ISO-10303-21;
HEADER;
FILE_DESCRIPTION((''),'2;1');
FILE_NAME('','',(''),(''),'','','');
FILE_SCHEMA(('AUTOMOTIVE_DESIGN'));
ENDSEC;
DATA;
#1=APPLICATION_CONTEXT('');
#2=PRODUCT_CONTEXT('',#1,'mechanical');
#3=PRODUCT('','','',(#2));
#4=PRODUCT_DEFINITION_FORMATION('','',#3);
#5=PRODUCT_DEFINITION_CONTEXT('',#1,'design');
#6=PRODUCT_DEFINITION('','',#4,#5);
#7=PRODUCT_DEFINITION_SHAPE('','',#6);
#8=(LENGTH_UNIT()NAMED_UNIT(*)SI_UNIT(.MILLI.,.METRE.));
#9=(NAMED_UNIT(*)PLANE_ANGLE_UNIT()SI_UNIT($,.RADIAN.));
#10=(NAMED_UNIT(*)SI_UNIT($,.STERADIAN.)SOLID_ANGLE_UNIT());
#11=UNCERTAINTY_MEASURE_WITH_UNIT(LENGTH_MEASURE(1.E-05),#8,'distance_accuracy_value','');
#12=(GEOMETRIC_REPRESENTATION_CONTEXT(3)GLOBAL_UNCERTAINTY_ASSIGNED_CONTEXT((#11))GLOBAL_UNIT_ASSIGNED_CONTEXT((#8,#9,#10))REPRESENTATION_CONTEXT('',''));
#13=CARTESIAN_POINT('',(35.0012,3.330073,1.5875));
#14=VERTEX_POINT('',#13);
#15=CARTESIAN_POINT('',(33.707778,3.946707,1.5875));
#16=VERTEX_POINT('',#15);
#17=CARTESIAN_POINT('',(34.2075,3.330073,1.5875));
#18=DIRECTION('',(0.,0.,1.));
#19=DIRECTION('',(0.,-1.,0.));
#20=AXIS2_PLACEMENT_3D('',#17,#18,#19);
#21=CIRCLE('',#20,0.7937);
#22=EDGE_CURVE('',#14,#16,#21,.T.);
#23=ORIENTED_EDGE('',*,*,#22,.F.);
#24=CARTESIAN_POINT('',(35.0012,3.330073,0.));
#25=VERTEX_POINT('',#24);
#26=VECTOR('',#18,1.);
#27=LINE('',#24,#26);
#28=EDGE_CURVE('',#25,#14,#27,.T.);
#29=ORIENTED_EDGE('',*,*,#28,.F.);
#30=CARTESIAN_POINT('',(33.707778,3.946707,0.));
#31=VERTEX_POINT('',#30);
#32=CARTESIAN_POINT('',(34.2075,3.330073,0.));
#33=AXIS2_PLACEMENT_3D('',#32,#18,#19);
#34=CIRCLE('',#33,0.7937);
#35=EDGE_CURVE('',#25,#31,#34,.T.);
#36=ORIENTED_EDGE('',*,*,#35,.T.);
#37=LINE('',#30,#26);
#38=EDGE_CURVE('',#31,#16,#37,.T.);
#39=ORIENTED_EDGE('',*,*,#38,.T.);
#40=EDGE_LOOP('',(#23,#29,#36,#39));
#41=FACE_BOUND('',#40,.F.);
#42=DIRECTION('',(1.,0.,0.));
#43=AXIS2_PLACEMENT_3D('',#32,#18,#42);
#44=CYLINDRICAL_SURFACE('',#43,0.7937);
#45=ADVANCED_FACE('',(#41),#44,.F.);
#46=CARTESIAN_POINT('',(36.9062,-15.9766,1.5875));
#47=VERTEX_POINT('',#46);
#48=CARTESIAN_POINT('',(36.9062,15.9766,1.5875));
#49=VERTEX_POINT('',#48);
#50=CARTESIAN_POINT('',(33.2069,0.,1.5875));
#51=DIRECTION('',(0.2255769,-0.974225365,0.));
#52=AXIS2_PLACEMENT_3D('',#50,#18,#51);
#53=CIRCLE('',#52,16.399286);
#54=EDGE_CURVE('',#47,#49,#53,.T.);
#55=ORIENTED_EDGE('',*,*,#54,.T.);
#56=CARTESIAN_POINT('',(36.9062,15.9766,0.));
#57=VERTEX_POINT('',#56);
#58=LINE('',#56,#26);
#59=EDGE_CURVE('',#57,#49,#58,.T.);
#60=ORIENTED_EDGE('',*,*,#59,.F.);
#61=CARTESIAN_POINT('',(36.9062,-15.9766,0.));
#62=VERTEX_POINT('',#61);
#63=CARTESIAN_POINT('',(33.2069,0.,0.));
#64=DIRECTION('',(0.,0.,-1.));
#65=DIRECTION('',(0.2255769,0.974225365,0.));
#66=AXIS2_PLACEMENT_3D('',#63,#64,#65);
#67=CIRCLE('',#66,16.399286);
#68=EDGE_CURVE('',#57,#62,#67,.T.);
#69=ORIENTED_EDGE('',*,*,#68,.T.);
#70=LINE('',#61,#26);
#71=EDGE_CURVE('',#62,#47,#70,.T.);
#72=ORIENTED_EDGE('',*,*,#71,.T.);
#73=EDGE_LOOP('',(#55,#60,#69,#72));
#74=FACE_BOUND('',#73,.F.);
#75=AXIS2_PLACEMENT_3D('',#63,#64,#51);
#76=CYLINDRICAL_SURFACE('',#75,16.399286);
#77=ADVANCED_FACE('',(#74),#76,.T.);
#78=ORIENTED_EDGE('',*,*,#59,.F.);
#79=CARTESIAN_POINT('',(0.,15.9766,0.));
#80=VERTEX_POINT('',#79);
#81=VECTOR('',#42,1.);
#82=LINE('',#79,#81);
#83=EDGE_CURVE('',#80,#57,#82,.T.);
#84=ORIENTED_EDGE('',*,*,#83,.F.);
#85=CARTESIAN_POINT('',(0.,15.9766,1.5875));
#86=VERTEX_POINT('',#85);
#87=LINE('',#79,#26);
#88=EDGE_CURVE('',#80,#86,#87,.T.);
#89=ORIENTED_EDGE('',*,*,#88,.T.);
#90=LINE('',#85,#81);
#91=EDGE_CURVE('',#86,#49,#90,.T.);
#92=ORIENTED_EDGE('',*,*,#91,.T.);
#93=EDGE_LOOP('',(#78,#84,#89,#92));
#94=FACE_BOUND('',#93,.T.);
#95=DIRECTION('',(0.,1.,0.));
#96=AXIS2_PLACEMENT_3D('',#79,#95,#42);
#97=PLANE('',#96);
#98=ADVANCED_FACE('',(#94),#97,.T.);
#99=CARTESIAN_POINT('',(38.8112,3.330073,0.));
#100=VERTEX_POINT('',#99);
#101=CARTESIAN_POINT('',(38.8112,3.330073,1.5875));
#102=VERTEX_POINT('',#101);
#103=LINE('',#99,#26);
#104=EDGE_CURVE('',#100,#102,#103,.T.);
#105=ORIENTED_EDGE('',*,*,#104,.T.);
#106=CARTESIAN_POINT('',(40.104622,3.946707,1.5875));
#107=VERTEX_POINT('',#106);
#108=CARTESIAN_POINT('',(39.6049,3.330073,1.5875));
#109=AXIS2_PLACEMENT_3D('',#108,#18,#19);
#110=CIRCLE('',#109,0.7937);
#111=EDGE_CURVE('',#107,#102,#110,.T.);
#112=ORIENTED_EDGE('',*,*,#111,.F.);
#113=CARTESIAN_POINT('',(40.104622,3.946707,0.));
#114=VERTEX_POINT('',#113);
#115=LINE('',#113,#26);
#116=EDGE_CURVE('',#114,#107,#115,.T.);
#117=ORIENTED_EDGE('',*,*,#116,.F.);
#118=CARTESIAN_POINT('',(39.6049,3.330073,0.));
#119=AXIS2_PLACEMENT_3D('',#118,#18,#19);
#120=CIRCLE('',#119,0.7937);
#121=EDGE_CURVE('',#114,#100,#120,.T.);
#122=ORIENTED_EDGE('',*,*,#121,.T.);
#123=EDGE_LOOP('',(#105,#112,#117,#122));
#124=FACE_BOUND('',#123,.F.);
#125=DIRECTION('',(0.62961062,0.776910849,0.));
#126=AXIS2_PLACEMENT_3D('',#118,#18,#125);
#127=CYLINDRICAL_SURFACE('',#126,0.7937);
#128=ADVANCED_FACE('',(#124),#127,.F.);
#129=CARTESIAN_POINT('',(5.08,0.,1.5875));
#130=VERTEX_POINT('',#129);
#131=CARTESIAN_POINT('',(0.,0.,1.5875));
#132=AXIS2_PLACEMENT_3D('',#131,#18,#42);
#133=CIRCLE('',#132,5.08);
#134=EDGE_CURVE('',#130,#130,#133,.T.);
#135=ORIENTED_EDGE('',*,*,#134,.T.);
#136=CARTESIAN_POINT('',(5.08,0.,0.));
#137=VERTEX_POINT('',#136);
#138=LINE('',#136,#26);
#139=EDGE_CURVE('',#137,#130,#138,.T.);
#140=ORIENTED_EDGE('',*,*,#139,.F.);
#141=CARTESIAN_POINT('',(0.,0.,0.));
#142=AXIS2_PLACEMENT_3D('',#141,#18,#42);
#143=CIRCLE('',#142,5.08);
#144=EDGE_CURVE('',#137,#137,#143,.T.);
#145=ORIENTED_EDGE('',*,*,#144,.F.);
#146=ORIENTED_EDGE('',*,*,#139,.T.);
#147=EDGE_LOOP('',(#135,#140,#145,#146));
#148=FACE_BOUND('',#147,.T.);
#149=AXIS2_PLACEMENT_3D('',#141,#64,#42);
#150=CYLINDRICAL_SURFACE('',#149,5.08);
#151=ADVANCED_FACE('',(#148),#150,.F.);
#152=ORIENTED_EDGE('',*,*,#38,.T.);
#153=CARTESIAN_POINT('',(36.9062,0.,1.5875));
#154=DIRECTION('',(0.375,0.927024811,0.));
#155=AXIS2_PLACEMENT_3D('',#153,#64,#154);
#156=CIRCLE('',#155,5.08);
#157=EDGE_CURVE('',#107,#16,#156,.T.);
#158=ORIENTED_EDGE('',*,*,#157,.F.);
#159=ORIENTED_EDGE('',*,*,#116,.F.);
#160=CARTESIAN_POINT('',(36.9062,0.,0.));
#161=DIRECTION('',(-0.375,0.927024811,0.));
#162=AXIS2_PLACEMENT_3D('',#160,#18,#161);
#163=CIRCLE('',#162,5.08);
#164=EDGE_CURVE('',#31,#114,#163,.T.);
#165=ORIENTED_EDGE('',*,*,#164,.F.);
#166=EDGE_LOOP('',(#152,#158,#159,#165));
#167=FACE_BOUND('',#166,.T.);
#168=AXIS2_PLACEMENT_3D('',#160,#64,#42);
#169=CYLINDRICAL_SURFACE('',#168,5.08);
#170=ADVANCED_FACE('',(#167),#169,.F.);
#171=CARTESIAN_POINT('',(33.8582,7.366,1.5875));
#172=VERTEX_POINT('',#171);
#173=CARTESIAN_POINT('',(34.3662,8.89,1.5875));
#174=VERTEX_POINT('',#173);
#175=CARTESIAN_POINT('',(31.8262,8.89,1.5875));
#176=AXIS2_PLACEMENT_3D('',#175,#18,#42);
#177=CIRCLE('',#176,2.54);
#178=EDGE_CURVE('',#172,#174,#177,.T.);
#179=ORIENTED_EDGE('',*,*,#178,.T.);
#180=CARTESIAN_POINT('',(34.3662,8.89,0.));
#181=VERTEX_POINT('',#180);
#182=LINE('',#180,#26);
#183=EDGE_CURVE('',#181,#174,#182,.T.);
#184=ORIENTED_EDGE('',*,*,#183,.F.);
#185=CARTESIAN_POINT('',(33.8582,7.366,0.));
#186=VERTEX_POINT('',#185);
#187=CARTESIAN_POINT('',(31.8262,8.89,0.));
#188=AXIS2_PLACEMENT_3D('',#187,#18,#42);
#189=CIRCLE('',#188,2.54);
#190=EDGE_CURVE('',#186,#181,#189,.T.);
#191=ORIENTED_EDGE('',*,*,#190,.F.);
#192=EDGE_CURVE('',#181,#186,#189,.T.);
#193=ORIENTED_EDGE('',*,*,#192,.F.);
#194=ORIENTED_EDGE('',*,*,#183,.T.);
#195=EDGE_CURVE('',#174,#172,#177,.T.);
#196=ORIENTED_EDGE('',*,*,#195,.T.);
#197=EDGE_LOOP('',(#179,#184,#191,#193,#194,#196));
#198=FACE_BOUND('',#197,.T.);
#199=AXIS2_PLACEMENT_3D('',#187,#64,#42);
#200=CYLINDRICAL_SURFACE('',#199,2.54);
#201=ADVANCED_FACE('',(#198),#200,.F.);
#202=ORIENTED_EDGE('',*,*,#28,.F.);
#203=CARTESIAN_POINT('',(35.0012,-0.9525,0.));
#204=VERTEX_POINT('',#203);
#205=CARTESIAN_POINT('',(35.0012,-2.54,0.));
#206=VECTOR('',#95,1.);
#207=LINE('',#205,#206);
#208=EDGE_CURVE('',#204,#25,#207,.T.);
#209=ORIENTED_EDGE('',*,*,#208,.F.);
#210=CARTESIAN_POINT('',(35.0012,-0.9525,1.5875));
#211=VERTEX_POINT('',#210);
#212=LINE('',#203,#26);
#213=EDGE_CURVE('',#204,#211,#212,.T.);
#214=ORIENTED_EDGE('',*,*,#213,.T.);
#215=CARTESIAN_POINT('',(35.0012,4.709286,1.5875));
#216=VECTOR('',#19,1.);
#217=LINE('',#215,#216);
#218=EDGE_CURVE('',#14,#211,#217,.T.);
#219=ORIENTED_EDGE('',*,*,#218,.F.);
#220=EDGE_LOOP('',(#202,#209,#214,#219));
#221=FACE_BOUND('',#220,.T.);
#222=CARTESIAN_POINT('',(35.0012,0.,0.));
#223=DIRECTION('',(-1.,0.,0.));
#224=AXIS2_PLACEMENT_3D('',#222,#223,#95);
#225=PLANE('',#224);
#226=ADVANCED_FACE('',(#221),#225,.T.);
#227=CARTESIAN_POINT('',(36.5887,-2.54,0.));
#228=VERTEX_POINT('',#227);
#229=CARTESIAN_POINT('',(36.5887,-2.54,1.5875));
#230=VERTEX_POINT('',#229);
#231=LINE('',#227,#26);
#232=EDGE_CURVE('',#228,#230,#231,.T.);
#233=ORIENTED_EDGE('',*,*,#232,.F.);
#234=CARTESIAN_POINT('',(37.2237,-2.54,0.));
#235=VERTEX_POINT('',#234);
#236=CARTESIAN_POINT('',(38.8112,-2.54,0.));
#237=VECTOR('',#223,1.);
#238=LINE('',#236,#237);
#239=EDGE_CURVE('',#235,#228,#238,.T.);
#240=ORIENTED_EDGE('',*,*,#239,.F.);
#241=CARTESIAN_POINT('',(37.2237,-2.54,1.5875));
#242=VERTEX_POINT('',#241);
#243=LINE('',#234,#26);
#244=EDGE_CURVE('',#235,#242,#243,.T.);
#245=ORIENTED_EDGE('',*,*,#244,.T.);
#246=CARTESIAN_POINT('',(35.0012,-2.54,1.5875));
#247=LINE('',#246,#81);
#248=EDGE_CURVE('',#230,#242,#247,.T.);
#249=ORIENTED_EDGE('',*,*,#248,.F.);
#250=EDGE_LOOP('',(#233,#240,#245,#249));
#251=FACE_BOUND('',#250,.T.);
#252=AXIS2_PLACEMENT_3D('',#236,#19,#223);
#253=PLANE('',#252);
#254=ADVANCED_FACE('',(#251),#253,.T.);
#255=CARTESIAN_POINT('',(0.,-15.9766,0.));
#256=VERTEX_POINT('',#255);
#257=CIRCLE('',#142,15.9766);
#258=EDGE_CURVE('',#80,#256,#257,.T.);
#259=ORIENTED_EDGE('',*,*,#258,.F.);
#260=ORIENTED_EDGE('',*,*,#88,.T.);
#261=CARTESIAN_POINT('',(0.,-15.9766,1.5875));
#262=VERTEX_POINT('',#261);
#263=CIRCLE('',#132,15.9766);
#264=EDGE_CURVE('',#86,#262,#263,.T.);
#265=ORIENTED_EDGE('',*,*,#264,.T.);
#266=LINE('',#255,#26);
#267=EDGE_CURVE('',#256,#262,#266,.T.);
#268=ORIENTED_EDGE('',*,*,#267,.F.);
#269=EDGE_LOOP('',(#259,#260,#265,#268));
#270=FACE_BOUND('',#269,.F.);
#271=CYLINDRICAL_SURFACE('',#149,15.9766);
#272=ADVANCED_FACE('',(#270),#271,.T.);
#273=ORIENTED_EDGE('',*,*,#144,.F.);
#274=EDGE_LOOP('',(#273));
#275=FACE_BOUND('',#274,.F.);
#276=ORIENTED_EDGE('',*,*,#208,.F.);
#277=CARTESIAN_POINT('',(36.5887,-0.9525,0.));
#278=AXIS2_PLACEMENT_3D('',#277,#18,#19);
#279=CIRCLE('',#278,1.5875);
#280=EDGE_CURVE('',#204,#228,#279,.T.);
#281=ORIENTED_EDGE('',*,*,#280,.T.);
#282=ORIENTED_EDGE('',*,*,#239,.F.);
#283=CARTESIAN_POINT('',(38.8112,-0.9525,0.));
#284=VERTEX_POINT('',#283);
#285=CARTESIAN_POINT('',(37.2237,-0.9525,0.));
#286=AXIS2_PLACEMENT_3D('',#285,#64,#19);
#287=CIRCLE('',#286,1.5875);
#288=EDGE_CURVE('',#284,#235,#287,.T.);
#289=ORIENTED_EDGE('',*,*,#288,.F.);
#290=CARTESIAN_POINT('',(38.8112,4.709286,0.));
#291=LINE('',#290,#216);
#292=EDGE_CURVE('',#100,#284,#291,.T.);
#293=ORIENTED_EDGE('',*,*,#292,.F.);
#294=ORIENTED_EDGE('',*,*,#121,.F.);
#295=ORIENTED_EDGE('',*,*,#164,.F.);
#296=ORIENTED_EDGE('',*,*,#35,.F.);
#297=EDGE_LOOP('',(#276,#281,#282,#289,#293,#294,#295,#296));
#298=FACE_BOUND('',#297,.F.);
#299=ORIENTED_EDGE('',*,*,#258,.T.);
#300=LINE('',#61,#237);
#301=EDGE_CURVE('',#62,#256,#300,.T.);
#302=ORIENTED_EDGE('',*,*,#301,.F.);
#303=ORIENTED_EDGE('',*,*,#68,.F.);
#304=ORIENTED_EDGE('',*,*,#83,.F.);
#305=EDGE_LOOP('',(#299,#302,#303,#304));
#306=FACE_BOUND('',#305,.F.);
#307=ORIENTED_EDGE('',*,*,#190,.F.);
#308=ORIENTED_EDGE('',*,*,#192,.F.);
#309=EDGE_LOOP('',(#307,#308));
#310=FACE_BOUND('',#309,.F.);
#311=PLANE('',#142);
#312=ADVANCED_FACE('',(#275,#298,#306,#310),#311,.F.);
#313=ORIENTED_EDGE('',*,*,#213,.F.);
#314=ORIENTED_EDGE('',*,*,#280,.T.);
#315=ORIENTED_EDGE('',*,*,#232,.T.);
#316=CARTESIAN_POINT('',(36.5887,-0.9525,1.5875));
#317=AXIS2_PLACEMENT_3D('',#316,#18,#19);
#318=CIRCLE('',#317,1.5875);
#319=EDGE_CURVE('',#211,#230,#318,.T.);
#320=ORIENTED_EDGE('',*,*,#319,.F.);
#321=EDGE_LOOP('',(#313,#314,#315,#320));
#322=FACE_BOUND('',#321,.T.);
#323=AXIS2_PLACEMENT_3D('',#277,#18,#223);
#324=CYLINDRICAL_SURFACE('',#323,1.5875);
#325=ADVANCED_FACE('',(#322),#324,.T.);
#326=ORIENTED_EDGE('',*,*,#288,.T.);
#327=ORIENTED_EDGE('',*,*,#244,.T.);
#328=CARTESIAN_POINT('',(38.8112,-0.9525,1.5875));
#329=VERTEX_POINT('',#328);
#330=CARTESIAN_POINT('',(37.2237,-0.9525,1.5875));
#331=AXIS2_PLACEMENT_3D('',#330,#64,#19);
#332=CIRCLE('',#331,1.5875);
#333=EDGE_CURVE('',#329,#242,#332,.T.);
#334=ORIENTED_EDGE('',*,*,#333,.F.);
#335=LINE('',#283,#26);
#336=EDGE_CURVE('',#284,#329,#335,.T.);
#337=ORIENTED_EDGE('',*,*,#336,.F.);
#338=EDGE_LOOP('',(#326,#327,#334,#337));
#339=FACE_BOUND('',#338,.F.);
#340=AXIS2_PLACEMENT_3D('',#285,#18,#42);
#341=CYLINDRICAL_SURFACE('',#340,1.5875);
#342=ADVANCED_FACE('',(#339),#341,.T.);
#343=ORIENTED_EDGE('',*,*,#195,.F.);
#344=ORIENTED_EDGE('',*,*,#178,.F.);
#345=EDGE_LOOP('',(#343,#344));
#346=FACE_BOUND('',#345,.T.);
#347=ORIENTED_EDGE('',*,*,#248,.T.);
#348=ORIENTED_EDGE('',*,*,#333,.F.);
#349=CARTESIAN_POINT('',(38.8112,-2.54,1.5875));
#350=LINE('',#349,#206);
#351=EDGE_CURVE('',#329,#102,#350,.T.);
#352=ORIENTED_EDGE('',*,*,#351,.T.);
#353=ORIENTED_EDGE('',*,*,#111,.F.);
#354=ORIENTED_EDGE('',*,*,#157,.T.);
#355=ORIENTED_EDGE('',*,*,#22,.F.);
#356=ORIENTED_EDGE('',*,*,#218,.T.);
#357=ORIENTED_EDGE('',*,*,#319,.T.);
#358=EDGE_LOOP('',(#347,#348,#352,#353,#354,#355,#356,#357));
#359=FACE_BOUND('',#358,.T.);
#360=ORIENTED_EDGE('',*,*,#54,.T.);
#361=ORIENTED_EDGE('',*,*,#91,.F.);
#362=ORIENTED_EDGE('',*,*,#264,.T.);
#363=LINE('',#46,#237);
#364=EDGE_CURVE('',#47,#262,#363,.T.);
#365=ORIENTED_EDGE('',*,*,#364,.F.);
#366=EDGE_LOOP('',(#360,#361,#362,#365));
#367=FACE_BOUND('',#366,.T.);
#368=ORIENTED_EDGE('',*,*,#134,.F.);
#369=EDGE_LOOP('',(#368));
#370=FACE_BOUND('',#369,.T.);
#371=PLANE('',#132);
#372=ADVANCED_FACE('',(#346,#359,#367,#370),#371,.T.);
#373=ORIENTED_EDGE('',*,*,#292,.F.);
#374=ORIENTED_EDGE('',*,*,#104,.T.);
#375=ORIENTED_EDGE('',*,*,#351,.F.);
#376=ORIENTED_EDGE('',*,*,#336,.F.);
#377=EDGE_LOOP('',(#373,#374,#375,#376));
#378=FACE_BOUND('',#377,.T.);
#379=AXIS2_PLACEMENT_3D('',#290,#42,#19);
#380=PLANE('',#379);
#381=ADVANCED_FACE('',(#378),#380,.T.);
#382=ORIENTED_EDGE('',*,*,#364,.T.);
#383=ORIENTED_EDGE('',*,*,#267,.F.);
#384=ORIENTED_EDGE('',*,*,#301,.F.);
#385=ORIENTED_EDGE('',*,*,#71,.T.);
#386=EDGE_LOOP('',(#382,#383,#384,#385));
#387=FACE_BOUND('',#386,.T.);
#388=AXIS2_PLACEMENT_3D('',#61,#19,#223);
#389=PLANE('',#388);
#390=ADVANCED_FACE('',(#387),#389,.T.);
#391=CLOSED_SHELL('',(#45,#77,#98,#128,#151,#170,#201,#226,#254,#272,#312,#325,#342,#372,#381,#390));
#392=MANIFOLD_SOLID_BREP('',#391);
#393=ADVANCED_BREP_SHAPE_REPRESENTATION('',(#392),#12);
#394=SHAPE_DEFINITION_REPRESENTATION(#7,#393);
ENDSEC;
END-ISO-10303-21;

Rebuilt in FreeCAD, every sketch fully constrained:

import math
import FreeCAD as App
import Part
import Sketcher
Q = App.Units.Quantity


def edges_at(feature, points):
    """Names of the edges that pass closest to the given points."""
    edges = feature.Shape.Edges
    near = lambda p: min(range(len(edges)), key=lambda i: edges[i].distToShape(Part.Vertex(*p))[0])
    return sorted({f"Edge{near(p) + 1}" for p in points})

doc = App.newDocument("Part")
body = doc.addObject("PartDesign::Body", "Body")

sketch1 = body.newObject("Sketcher::SketchObject", "Sketch")
sketch1.AttachmentSupport = (doc.getObject("XY_Plane"), [""])
sketch1.MapMode = "FlatFace"
sketch1.addGeometry([
    Part.ArcOfCircle(Part.Circle(App.Vector(0, 0, 0), App.Vector(0, 0, 1), 16), math.radians(90), math.radians(270)),
    Part.LineSegment(App.Vector(0, -16, 0), App.Vector(36.9, -16, 0)),
    Part.ArcOfCircle(Part.Circle(App.Vector(33.2, 0, 0), App.Vector(0, 0, 1), 16.4), math.radians(-77), math.radians(77)),
    Part.LineSegment(App.Vector(36.9, 16, 0), App.Vector(0, 16, 0)),
    Part.Circle(App.Vector(0, 0, 0), App.Vector(0, 0, 1), 5.1),
    Part.LineSegment(App.Vector(35, 4.7, 0), App.Vector(35, -2.5, 0)),
    Part.LineSegment(App.Vector(35, -2.5, 0), App.Vector(38.8, -2.5, 0)),
    Part.LineSegment(App.Vector(38.8, -2.5, 0), App.Vector(38.8, 4.7, 0)),
    Part.ArcOfCircle(Part.Circle(App.Vector(36.9, 0, 0), App.Vector(0, 0, 1), 5.1), math.radians(112), math.radians(428)),
    Part.Circle(App.Vector(31.8, 8.9, 0), App.Vector(0, 0, 1), 2.5),
], False)
sketch1.addConstraint([
    Sketcher.Constraint("Tangent", 0, 2, 1, 1),
    Sketcher.Constraint("Coincident", 1, 2, 2, 1),
    Sketcher.Constraint("Coincident", 2, 2, 3, 1),
    Sketcher.Constraint("Tangent", 3, 2, 0, 1),
    Sketcher.Constraint("Coincident", 5, 2, 6, 1),
    Sketcher.Constraint("Coincident", 6, 2, 7, 1),
    Sketcher.Constraint("Coincident", 7, 2, 8, 2),
    Sketcher.Constraint("Coincident", 8, 1, 5, 1),
    Sketcher.Constraint("Horizontal", 1),
    Sketcher.Constraint("Horizontal", 3),
    Sketcher.Constraint("Vertical", 5),
    Sketcher.Constraint("Horizontal", 6),
    Sketcher.Constraint("Vertical", 7),
    Sketcher.Constraint("Coincident", 0, 3, -1, 1),
    Sketcher.Constraint("Coincident", 4, 3, -1, 1),
    Sketcher.Constraint("Equal", 4, 8),
    Sketcher.Constraint("PointOnObject", 2, 3, -1),
    Sketcher.Constraint("PointOnObject", 8, 3, -1),
    Sketcher.Constraint("Horizontal", 7, 2, 8, 1),
    Sketcher.Constraint("Vertical", 8, 3, 1, 2),
    Sketcher.Constraint("Diameter", 4, Q("0.4 in")),
    Sketcher.Constraint("Diameter", 9, Q("0.2 in")),
    Sketcher.Constraint("Radius", 0, Q("0.629 in")),
    Sketcher.Constraint("DistanceX", 6, 1, 6, 2, Q("0.15 in")),
    Sketcher.Constraint("DistanceX", 9, 3, 8, 3, Q("0.2 in")),
    Sketcher.Constraint("DistanceX", 1, 1, 1, 2, Q("1.453 in")),
    Sketcher.Constraint("DistanceY", 5, 2, -1, 1, Q("0.1 in")),
    Sketcher.Constraint("DistanceY", -1, 1, 9, 3, Q("0.35 in")),
    Sketcher.Constraint("Radius", 2, 16.3993),
])
pad1 = body.newObject("PartDesign::Pad", "Pad")
pad1.Profile = sketch1
pad1.Length = Q("0.0625 in")
doc.recompute()

fillet = body.newObject("PartDesign::Fillet", "Fillet")
fillet.Base = (pad1, edges_at(pad1, [(38.811, -2.54, 0.794), (35.001, -2.54, 0.794)]))
fillet.Radius = Q("0.0625 in")
doc.recompute()

fillet2 = body.newObject("PartDesign::Fillet", "Fillet001")
fillet2.Base = (fillet, edges_at(fillet, [(35.001, 4.709, 0.794), (38.811, 4.709, 0.794)]))
fillet2.Radius = Q("0.031248 in")

doc.recompute()
